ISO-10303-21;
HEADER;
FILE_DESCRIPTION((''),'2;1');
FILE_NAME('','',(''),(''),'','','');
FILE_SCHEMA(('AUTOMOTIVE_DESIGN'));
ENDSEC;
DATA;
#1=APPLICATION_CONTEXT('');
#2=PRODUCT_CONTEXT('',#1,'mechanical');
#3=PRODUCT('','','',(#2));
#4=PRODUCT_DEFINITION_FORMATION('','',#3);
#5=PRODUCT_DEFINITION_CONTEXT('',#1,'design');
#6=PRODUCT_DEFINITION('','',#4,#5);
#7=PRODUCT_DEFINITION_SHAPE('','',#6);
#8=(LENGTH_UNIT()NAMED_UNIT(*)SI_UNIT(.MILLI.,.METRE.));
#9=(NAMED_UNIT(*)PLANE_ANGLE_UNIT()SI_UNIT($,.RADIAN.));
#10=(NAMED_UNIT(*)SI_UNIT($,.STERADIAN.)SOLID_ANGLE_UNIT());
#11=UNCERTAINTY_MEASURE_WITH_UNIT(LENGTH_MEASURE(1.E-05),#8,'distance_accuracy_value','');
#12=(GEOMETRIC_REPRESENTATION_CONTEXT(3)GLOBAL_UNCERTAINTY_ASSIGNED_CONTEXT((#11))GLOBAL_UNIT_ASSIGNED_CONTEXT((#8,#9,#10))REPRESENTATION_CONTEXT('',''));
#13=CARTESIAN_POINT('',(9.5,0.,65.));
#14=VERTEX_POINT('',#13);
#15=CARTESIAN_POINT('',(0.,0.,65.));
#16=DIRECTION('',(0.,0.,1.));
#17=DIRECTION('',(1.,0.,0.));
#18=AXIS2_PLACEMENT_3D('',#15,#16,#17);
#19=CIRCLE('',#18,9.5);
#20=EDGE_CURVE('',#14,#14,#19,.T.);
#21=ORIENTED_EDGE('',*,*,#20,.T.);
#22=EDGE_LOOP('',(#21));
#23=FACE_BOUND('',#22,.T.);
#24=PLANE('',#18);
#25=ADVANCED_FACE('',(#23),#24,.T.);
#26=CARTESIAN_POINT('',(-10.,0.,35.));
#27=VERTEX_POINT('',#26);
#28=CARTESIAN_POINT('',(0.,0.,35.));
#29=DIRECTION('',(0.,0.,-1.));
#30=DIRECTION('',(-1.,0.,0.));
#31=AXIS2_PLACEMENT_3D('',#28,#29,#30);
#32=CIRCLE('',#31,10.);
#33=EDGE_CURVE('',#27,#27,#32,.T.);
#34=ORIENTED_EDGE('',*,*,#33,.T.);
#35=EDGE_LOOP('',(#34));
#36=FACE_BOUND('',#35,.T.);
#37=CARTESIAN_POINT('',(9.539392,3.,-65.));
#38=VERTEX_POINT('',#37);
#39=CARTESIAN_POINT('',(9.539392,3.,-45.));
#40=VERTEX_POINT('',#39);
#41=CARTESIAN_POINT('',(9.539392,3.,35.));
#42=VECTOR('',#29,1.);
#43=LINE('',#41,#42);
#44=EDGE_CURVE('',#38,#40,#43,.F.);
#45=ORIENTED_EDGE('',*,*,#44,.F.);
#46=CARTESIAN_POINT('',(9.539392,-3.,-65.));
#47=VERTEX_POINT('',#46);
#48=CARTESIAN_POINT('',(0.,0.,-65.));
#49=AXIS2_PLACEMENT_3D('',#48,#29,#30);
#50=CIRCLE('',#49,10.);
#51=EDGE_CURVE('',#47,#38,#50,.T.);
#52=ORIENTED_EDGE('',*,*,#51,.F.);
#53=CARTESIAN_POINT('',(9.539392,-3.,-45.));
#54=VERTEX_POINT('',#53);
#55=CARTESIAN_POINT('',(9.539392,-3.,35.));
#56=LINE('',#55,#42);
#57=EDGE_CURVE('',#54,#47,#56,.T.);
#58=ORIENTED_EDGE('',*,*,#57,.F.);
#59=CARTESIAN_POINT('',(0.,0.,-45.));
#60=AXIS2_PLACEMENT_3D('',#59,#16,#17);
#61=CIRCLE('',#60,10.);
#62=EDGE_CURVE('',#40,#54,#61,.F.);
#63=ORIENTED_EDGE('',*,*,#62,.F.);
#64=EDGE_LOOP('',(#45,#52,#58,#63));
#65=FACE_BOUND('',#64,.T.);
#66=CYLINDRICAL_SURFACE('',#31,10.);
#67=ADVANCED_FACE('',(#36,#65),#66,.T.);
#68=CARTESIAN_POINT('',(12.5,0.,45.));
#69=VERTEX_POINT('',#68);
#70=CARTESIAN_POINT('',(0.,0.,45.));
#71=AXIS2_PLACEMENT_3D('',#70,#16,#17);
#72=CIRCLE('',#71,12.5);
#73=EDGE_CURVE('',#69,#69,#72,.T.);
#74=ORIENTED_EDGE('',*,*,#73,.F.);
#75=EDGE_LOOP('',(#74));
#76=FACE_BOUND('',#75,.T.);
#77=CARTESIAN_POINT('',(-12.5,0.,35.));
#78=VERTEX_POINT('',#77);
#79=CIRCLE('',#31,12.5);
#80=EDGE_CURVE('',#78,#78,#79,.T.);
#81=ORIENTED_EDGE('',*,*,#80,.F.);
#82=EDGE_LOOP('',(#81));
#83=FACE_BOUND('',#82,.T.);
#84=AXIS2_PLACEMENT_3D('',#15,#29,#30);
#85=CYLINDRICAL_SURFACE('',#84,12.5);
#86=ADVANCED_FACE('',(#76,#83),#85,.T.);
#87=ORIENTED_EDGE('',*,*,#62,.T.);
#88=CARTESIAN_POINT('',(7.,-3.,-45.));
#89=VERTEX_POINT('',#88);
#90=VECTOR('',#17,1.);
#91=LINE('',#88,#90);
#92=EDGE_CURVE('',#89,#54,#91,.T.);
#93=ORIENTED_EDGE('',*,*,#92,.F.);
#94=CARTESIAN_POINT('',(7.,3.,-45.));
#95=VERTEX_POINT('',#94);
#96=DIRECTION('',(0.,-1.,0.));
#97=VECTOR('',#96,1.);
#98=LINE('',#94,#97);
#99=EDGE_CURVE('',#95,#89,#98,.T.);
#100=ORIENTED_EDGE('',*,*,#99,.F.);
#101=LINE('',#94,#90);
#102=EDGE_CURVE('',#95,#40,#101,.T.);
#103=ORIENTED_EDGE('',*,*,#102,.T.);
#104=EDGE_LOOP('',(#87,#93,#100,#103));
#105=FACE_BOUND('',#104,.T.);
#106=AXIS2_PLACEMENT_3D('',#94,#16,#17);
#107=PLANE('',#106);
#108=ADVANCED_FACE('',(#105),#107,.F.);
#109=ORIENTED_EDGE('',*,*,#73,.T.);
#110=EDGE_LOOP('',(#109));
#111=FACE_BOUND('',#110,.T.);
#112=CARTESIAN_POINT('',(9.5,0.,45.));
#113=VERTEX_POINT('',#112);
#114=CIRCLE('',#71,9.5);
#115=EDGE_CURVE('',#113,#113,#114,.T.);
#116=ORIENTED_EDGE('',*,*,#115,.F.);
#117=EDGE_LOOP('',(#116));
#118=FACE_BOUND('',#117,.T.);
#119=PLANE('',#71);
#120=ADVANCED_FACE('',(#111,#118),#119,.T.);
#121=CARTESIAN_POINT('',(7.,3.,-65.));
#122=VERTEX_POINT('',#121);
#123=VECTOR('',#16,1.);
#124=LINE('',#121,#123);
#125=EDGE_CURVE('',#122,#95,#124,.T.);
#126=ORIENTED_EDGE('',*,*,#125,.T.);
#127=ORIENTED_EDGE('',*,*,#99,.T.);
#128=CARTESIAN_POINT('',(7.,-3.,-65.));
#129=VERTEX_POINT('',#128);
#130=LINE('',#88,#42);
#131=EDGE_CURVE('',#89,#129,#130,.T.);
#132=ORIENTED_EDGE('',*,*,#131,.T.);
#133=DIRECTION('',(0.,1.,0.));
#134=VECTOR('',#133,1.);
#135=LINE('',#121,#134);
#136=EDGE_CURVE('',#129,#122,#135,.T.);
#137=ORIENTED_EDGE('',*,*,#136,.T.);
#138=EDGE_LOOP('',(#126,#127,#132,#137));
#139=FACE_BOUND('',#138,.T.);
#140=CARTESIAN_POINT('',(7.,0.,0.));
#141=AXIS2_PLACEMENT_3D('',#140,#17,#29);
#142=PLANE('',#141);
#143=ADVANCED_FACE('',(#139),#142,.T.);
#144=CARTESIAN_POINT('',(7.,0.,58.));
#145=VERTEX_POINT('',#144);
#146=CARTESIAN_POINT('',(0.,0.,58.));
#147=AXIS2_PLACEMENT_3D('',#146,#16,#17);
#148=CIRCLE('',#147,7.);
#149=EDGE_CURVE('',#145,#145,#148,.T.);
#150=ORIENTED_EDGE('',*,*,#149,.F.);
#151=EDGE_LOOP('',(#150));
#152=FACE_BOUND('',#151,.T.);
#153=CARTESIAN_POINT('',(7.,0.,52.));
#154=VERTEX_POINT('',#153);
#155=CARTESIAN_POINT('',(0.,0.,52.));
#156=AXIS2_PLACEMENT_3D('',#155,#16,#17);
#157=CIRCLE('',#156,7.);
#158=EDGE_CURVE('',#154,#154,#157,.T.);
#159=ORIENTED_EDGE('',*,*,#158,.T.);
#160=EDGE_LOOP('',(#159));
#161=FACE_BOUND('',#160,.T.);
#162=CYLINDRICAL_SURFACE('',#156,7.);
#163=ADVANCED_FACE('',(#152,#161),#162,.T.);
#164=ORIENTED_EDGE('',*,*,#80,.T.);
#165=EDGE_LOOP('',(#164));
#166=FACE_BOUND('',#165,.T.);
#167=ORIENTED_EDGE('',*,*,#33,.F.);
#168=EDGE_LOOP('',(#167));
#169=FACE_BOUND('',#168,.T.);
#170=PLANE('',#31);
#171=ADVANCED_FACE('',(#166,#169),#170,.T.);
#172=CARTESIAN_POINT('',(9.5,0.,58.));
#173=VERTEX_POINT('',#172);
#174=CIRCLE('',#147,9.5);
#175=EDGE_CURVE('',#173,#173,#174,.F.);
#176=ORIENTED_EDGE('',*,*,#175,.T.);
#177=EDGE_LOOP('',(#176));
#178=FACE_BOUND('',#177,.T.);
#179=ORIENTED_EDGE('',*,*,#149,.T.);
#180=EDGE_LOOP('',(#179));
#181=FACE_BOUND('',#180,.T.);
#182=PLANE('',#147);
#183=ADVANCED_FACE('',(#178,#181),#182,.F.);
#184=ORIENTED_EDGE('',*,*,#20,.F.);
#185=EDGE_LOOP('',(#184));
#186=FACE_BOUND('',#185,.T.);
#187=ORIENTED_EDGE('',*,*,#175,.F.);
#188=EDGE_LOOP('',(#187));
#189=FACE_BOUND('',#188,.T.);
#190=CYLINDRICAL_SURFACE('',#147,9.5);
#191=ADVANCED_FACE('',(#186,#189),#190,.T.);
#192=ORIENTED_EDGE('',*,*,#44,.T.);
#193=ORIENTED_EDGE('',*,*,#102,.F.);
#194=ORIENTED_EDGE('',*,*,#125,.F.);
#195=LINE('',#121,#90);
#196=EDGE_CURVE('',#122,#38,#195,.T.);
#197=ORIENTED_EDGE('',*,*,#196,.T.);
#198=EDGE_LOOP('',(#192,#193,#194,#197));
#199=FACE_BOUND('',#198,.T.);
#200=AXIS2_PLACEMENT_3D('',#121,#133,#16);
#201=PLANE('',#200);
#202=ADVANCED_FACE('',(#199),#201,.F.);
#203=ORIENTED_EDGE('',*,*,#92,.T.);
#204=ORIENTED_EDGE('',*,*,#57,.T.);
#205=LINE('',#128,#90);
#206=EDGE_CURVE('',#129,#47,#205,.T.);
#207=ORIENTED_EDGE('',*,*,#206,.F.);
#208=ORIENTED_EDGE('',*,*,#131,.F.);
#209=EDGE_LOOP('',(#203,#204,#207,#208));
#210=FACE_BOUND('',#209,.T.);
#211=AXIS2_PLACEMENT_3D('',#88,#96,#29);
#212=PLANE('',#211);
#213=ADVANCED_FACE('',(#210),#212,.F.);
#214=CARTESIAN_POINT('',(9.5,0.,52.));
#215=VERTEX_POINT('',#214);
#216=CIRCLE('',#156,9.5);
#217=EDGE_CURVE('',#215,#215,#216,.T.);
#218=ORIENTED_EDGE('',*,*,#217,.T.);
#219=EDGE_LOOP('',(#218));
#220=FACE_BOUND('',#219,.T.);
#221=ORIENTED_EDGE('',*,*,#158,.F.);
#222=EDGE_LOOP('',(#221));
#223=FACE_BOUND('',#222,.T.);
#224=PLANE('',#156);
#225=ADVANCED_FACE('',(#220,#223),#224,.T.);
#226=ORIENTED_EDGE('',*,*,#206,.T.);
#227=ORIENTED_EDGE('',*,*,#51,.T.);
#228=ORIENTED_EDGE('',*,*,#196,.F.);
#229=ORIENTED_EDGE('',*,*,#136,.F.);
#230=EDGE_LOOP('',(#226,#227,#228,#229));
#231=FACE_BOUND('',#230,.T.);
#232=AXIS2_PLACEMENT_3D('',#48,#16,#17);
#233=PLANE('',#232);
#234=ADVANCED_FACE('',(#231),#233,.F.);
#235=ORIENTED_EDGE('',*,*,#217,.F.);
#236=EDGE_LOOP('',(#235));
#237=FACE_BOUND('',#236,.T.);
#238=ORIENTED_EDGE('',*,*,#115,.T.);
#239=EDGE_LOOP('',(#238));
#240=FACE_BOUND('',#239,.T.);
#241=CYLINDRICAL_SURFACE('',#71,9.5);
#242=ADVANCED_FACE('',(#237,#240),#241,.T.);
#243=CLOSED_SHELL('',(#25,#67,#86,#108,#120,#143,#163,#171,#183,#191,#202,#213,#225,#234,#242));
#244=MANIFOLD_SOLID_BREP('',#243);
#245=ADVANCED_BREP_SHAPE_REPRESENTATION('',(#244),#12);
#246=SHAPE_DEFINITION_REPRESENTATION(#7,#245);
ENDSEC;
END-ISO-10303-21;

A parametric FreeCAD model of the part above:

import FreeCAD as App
import Part
import Sketcher
from FreeCAD import Vector


def add_polygon(sketch, points):
    """Adds a closed chain of lines whose ends are joined by coincident constraints."""
    first, n = sketch.GeometryCount, len(points)
    for a, b in zip(points, points[1:] + points[:1]):
        sketch.addGeometry(Part.LineSegment(App.Vector(*a, 0), App.Vector(*b, 0)), False)
    for i in range(n):
        sketch.addConstraint(Sketcher.Constraint("Coincident", first + i, 2, first + (i + 1) % n, 1))

doc = App.newDocument("Part")
body = doc.addObject("PartDesign::Body", "Body")

sketch1 = doc.addObject("Sketcher::SketchObject", "Sketch")
body.addObject(sketch1)
sketch1.AttachmentSupport = (doc.XY_Plane, [""])
sketch1.MapMode = "FlatFace"
sketch1.addGeometry(Part.Circle(Vector(0, 0, 0), Vector(0, 0, 1), 12.5), False)
sketch1.addConstraint([
    Sketcher.Constraint("Coincident", 0, 3, -1, 1),
    Sketcher.Constraint("Diameter", 0, 25.0),
])
pad1 = doc.addObject("PartDesign::Pad", "Pad")
body.addObject(pad1)
pad1.Profile = sketch1
pad1.Length = 130
pad1.Midplane = True

sketch2 = doc.addObject("Sketcher::SketchObject", "Sketch001")
body.addObject(sketch2)
sketch2.AttachmentSupport = (doc.XY_Plane, [""])
sketch2.MapMode = "FlatFace"
sketch2.AttachmentOffset = App.Placement(Vector(0, 0, -65), App.Rotation())
sketch2.addGeometry([
    Part.Circle(Vector(0, 0, 0), Vector(0, 0, 1), 12.5),
    Part.Circle(Vector(0, 0, 0), Vector(0, 0, 1), 10),
], False)
sketch2.addConstraint([
    Sketcher.Constraint("Coincident", 0, 3, -1, 1),
    Sketcher.Constraint("Coincident", 1, 3, -1, 1),
    Sketcher.Constraint("Diameter", 0, 25.0),
    Sketcher.Constraint("Diameter", 1, 20.0),
])
pocket1 = doc.addObject("PartDesign::Pocket", "Pocket")
body.addObject(pocket1)
pocket1.Profile = sketch2
pocket1.Length = 100
pocket1.Reversed = True

sketch3 = doc.addObject("Sketcher::SketchObject", "Sketch002")
body.addObject(sketch3)
sketch3.AttachmentSupport = (doc.YZ_Plane, [""])
sketch3.MapMode = "FlatFace"
sketch3.AttachmentOffset = App.Placement(Vector(0, 0, 10), App.Rotation())
add_polygon(sketch3, [(3, -45), (-3, -45), (-3, -65), (3, -65)])
sketch3.addConstraint([
    Sketcher.Constraint("Horizontal", 0),
    Sketcher.Constraint("Vertical", 1),
    Sketcher.Constraint("Horizontal", 2),
    Sketcher.Constraint("Vertical", 3),
    Sketcher.Constraint("DistanceX", 0, 2, 0, 1, 6.0),
    Sketcher.Constraint("DistanceY", 1, 2, 1, 1, 20.0),
    Sketcher.Constraint("DistanceX", 0, 2, -1, 1, 3.0),
    Sketcher.Constraint("DistanceY", 0, 2, -1, 1, 45.0),
])
pocket2 = doc.addObject("PartDesign::Pocket", "Pocket001")
body.addObject(pocket2)
pocket2.Profile = sketch3
pocket2.Length = 3

sketch4 = doc.addObject("Sketcher::SketchObject", "Sketch003")
body.addObject(sketch4)
sketch4.AttachmentSupport = (doc.XY_Plane, [""])
sketch4.MapMode = "FlatFace"
sketch4.AttachmentOffset = App.Placement(Vector(0, 0, 65), App.Rotation())
sketch4.addGeometry([
    Part.Circle(Vector(0, 0, 0), Vector(0, 0, 1), 12.5),
    Part.Circle(Vector(0, 0, 0), Vector(0, 0, 1), 9.5),
], False)
sketch4.addConstraint([
    Sketcher.Constraint("Coincident", 0, 3, -1, 1),
    Sketcher.Constraint("Coincident", 1, 3, -1, 1),
    Sketcher.Constraint("Diameter", 0, 25.0),
    Sketcher.Constraint("Diameter", 1, 19.0),
])
pocket3 = doc.addObject("PartDesign::Pocket", "Pocket002")
body.addObject(pocket3)
pocket3.Profile = sketch4
pocket3.Length = 7

sketch5 = doc.addObject("Sketcher::SketchObject", "Sketch004")
body.addObject(sketch5)
sketch5.AttachmentSupport = (doc.XY_Plane, [""])
sketch5.MapMode = "FlatFace"
sketch5.AttachmentOffset = App.Placement(Vector(0, 0, 58), App.Rotation())
sketch5.addGeometry([
    Part.Circle(Vector(0, 0, 0), Vector(0, 0, 1), 12.5),
    Part.Circle(Vector(0, 0, 0), Vector(0, 0, 1), 7),
], False)
sketch5.addConstraint([
    Sketcher.Constraint("Coincident", 0, 3, -1, 1),
    Sketcher.Constraint("Coincident", 1, 3, -1, 1),
    Sketcher.Constraint("Diameter", 0, 25.0),
    Sketcher.Constraint("Diameter", 1, 14.0),
])
pocket4 = doc.addObject("PartDesign::Pocket", "Pocket003")
body.addObject(pocket4)
pocket4.Profile = sketch5
pocket4.Length = 6

sketch6 = doc.addObject("Sketcher::SketchObject", "Sketch005")
body.addObject(sketch6)
sketch6.AttachmentSupport = (doc.XY_Plane, [""])
sketch6.MapMode = "FlatFace"
sketch6.AttachmentOffset = App.Placement(Vector(0, 0, 52), App.Rotation())
sketch6.addGeometry([
    Part.Circle(Vector(0, 0, 0), Vector(0, 0, 1), 12.5),
    Part.Circle(Vector(0, 0, 0), Vector(0, 0, 1), 9.5),
], False)
sketch6.addConstraint([
    Sketcher.Constraint("Coincident", 0, 3, -1, 1),
    Sketcher.Constraint("Coincident", 1, 3, -1, 1),
    Sketcher.Constraint("Diameter", 0, 25.0),
    Sketcher.Constraint("Diameter", 1, 19.0),
])
pocket5 = doc.addObject("PartDesign::Pocket", "Pocket004")
body.addObject(pocket5)
pocket5.Profile = sketch6
pocket5.Length = 7

doc.recompute()
